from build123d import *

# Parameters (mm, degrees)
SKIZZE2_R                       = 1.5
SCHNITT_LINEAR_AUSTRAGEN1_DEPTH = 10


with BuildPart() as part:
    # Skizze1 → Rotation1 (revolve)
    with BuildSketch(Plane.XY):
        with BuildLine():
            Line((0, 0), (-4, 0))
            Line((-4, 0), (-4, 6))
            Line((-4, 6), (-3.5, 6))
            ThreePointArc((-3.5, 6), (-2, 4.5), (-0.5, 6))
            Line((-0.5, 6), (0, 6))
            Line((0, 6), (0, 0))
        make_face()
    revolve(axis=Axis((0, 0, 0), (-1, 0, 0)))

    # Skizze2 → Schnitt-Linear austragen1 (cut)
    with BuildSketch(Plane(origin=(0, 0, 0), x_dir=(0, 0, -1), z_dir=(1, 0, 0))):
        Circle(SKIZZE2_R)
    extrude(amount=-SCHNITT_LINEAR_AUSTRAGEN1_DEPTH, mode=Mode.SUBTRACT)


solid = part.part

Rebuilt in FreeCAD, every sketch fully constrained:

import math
import FreeCAD as App
import Part
import Sketcher
Q = App.Units.Quantity

doc = App.newDocument("Part")
params = doc.addObject("Spreadsheet::Sheet", "Params")
for row, (alias, value) in enumerate([
    ("sketch1_radius", "1.5 mm"),
    ("sketch1_width", "4 mm"),
    ("sketch1_height", "6 mm"),
    ("revolution_angle", "360 deg"),
    ("sketch2_diameter", "3 mm"),
    ("pocket1_length", "10 mm"),
], start=1):
    params.set(f"A{row}", alias)
    params.set(f"B{row}", "=" + value)
    params.setAlias(f"B{row}", alias)

body = doc.addObject("PartDesign::Body", "Body")

# Sketch on XY plane
sketch1 = doc.addObject("Sketcher::SketchObject", "Sketch")
body.addObject(sketch1)
sketch1.AttachmentSupport = (doc.XY_Plane, [""])
sketch1.MapMode = "FlatFace"
sketch1.addGeometry(Part.LineSegment(App.Vector(-4, 0, 0), App.Vector(0, 0, 0)), False)
sketch1.addGeometry(Part.LineSegment(App.Vector(0, 0, 0), App.Vector(0, 6, 0)), False)
sketch1.addGeometry(Part.LineSegment(App.Vector(0, 6, 0), App.Vector(-0.5, 6, 0)), False)
sketch1.addGeometry(Part.ArcOfCircle(Part.Circle(App.Vector(-2, 6, 0), App.Vector(0, 0, 1), 1.5), math.radians(180), math.radians(360)), False)
sketch1.addGeometry(Part.LineSegment(App.Vector(-3.5, 6, 0), App.Vector(-4, 6, 0)), False)
sketch1.addGeometry(Part.LineSegment(App.Vector(-4, 6, 0), App.Vector(-4, 0, 0)), False)
sketch1.addConstraint(Sketcher.Constraint("Coincident", 0, 2, 1, 1))
sketch1.addConstraint(Sketcher.Constraint("Coincident", 1, 2, 2, 1))
sketch1.addConstraint(Sketcher.Constraint("Coincident", 2, 2, 3, 2))
sketch1.addConstraint(Sketcher.Constraint("Coincident", 3, 1, 4, 1))
sketch1.addConstraint(Sketcher.Constraint("Coincident", 4, 2, 5, 1))
sketch1.addConstraint(Sketcher.Constraint("Coincident", 5, 2, 0, 1))
sketch1.addConstraint(Sketcher.Constraint("Horizontal", 0))
sketch1.addConstraint(Sketcher.Constraint("Vertical", 1))
sketch1.addConstraint(Sketcher.Constraint("Horizontal", 2))
sketch1.addConstraint(Sketcher.Constraint("Horizontal", 4))
sketch1.addConstraint(Sketcher.Constraint("Vertical", 5))
sketch1.addConstraint(Sketcher.Constraint("Coincident", 0, 2, -1, 1))
sketch1.addConstraint(Sketcher.Constraint("Horizontal", 3, 3, 1, 2))
sketch1.addConstraint(Sketcher.Constraint("Horizontal", 2, 2, 3, 1))
sketch1.addConstraint(Sketcher.Constraint("Equal", 2, 4))
sketch1.addConstraint(Sketcher.Constraint("Radius", 3, Q("1.5 mm")))
sketch1.addConstraint(Sketcher.Constraint("DistanceX", 0, 1, 0, 2, Q("4 mm")))
sketch1.addConstraint(Sketcher.Constraint("DistanceY", 1, 1, 1, 2, Q("6 mm")))
sketch1.setExpression("Constraints[15]", "Params.sketch1_radius")
sketch1.setExpression("Constraints[16]", "Params.sketch1_width")
sketch1.setExpression("Constraints[17]", "Params.sketch1_height")
revolution = doc.addObject("PartDesign::Revolution", "Revolution")
body.addObject(revolution)
revolution.Profile = sketch1
revolution.ReferenceAxis = (sketch1, ["H_Axis"])
revolution.setExpression("Angle", "Params.revolution_angle")

# Sketch on YZ plane
sketch2 = doc.addObject("Sketcher::SketchObject", "Sketch001")
body.addObject(sketch2)
sketch2.AttachmentSupport = (doc.YZ_Plane, [""])
sketch2.MapMode = "FlatFace"
sketch2.addGeometry(Part.Circle(App.Vector(0, 0, 0), App.Vector(0, 0, 1), 1.5), False)
sketch2.addConstraint(Sketcher.Constraint("Coincident", 0, 3, -1, 1))
sketch2.addConstraint(Sketcher.Constraint("Diameter", 0, Q("3 mm")))
sketch2.setExpression("Constraints[1]", "Params.sketch2_diameter")
pocket1 = doc.addObject("PartDesign::Pocket", "Pocket")
body.addObject(pocket1)
pocket1.Profile = sketch2
pocket1.setExpression("Length", "Params.pocket1_length")

doc.recompute()
